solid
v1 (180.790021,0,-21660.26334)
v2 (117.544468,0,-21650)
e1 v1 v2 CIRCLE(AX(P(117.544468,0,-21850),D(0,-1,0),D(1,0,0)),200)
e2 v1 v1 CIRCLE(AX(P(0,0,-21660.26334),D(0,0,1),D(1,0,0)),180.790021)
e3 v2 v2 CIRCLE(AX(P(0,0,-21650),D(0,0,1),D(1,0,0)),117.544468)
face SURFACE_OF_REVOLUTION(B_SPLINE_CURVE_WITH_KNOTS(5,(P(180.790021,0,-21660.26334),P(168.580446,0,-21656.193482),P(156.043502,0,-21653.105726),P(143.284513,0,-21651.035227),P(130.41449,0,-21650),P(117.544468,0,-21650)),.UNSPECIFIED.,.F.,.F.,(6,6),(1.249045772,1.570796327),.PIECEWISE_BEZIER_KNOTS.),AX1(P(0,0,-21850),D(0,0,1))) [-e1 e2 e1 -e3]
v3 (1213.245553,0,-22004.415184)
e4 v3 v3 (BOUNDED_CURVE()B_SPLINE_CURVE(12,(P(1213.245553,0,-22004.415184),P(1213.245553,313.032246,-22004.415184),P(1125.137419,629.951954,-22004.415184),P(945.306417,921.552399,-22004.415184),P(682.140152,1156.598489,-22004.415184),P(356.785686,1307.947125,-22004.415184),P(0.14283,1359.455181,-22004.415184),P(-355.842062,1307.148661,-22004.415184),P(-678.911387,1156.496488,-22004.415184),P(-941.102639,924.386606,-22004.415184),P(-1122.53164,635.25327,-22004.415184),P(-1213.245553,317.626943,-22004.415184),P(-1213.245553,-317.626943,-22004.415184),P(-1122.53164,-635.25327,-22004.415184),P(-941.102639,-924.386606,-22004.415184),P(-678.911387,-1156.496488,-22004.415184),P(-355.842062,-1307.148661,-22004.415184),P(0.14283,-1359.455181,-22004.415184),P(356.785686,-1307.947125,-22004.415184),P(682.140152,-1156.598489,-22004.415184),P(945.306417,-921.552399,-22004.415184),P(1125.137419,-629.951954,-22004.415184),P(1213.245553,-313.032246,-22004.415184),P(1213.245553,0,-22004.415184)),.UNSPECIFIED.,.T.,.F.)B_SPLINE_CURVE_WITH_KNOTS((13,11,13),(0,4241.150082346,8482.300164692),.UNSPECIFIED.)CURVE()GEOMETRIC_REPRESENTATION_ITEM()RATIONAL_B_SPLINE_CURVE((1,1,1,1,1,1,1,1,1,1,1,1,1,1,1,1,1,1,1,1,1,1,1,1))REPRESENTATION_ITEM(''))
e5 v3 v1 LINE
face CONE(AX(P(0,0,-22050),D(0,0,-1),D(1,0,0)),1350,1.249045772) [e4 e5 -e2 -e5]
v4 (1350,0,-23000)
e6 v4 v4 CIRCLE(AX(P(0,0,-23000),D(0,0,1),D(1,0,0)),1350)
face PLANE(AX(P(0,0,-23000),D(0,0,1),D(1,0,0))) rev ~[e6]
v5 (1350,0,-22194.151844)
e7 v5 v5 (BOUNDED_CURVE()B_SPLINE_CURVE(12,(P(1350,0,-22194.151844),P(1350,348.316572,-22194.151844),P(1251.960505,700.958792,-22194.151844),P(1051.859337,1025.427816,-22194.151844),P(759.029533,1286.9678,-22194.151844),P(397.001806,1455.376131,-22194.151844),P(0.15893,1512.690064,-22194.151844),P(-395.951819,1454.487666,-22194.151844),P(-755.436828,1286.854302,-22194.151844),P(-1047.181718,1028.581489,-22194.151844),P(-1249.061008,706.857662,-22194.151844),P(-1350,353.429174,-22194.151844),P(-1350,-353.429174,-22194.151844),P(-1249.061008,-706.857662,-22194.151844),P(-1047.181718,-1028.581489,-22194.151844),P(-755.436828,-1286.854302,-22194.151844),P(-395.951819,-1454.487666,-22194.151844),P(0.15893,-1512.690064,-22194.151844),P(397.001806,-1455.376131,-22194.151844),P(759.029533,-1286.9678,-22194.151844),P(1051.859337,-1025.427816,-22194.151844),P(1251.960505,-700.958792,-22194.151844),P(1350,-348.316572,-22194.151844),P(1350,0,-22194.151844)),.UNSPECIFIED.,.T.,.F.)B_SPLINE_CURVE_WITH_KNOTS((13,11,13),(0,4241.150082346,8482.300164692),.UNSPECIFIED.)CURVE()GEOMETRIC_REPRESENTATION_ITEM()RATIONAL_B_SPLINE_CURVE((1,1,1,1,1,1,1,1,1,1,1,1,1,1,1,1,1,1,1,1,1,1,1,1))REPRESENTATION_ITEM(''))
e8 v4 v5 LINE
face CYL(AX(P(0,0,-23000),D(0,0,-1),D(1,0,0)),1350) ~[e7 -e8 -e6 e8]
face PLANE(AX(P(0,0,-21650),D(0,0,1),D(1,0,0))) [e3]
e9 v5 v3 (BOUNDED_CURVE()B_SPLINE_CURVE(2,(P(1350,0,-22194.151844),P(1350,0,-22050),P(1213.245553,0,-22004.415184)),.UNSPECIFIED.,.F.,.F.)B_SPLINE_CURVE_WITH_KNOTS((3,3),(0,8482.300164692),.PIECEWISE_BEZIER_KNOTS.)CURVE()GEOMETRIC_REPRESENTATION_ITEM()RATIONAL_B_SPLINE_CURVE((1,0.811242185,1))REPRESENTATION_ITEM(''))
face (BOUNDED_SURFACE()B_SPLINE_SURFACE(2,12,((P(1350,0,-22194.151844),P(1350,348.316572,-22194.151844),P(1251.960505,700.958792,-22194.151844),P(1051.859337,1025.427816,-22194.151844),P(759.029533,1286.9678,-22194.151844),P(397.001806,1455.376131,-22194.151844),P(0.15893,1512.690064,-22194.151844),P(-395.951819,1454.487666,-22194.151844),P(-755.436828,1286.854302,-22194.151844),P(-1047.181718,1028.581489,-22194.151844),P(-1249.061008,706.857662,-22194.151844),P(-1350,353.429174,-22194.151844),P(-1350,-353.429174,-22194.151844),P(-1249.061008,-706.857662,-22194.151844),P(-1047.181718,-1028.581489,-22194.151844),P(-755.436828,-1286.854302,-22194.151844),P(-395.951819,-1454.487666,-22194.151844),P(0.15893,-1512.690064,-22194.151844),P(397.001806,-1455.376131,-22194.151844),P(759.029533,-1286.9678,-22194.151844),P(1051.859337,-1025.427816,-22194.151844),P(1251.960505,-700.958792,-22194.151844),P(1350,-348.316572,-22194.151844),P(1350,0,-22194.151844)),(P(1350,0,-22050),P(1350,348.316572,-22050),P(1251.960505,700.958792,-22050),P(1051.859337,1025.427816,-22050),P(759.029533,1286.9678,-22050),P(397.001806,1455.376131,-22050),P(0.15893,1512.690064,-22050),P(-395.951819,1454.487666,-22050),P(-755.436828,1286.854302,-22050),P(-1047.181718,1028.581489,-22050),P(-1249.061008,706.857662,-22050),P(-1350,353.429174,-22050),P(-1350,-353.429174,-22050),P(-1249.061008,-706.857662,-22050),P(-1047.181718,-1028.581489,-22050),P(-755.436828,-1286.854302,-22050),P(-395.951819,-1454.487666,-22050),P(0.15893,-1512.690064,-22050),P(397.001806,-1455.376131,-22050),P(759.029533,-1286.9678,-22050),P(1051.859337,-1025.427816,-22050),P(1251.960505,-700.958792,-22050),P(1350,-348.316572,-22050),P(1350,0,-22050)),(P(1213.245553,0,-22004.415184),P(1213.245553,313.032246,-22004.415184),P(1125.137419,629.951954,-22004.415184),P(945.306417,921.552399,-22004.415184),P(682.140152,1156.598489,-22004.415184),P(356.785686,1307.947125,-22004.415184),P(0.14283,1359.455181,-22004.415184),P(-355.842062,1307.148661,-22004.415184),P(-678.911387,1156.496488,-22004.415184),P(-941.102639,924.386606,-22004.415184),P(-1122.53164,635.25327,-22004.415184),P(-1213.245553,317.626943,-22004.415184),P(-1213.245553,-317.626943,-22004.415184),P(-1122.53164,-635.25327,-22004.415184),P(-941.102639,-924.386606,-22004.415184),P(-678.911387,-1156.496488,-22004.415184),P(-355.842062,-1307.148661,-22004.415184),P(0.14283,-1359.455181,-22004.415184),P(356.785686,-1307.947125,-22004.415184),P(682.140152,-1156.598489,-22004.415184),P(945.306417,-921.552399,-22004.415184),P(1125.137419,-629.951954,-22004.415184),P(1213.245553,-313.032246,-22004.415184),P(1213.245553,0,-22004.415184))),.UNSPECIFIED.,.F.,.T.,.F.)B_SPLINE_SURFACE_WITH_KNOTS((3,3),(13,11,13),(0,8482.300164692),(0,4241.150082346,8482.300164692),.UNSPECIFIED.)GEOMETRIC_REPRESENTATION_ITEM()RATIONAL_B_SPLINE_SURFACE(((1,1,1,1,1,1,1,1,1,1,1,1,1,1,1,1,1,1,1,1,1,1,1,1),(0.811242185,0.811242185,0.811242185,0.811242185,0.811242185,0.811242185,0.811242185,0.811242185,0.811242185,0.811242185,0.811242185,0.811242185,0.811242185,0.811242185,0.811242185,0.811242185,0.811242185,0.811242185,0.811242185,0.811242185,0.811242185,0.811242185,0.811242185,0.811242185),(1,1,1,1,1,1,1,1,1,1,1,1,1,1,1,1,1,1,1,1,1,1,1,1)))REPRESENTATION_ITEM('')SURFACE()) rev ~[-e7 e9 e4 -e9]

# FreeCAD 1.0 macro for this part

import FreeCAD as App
import Part
import Sketcher
Q = App.Units.Quantity


def edges_at(feature, points):
    """Names of the edges that pass closest to the given points."""
    edges = feature.Shape.Edges
    near = lambda p: min(range(len(edges)), key=lambda i: edges[i].distToShape(Part.Vertex(*p))[0])
    return sorted({f"Edge{near(p) + 1}" for p in points})

doc = App.newDocument("Part")
body = doc.addObject("PartDesign::Body", "Body")

# Sketch on XY plane
sketch1 = doc.addObject("Sketcher::SketchObject", "Sketch")
body.addObject(sketch1)
sketch1.AttachmentSupport = (doc.XY_Plane, [""])
sketch1.MapMode = "FlatFace"
sketch1.addGeometry(Part.Circle(App.Vector(0, 0, 0), App.Vector(0, 0, 1), 1350), False)
sketch1.addConstraint(Sketcher.Constraint("Coincident", 0, 3, -1, 1))
sketch1.addConstraint(Sketcher.Constraint("Diameter", 0, Q("2700 mm")))
pad1 = doc.addObject("PartDesign::Pad", "Pad")
body.addObject(pad1)
pad1.Profile = sketch1
pad1.Length = 1350
doc.recompute()

chamfer = doc.addObject("PartDesign::Chamfer", "Chamfer")
body.addObject(chamfer)
chamfer.Base = (pad1, edges_at(pad1, [(-1350, 0, 1350)]))
chamfer.ChamferType = "Two distances"
chamfer.Size = 400
chamfer.Size2 = 1200
doc.recompute()

fillet = doc.addObject("PartDesign::Fillet", "Fillet")
body.addObject(fillet)
fillet.Base = (chamfer, edges_at(chamfer, [(-1350, 0, 950), (-150, 0, 1350)]))
fillet.Radius = 200
body2 = doc.addObject("PartDesign::Body", "Body001")
doc.recompute()

body.Placement = App.Placement(App.Vector(0, 0, -23000), App.Rotation(App.Vector(0, 0, 1), 0))
boolean = doc.addObject("PartDesign::Boolean", "Boolean")
body2.addObject(boolean)
boolean.Type = "Fuse"
boolean.addObjects([body])

doc.recompute()
